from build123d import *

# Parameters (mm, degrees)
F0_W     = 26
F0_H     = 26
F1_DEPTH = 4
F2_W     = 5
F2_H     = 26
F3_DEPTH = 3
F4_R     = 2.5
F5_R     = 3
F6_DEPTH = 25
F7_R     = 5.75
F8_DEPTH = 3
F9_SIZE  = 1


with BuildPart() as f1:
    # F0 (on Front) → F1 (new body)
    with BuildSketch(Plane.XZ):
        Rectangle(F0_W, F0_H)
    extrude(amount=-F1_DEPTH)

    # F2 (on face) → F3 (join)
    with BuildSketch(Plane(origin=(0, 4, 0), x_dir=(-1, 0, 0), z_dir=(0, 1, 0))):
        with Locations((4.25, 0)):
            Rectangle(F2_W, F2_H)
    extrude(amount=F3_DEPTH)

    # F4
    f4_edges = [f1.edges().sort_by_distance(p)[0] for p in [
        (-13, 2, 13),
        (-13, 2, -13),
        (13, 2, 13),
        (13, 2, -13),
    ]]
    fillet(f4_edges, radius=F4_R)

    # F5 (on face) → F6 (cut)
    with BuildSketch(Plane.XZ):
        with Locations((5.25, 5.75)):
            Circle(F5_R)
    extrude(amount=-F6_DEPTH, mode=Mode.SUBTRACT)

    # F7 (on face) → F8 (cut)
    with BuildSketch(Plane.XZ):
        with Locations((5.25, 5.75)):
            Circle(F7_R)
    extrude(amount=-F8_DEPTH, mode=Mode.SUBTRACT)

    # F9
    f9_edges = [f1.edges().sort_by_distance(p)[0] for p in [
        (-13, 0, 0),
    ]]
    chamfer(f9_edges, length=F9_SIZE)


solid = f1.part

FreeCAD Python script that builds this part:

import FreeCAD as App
import Part
import Sketcher
from FreeCAD import Vector
Q = App.Units.Quantity


def edges_at(feature, points):
    """Names of the edges that pass closest to the given points."""
    edges = feature.Shape.Edges
    near = lambda p: min(range(len(edges)), key=lambda i: edges[i].distToShape(Part.Vertex(*p))[0])
    return sorted({f"Edge{near(p) + 1}" for p in points})


def add_polygon(sketch, points):
    """Adds a closed chain of lines whose ends are joined by coincident constraints."""
    first, n = sketch.GeometryCount, len(points)
    for a, b in zip(points, points[1:] + points[:1]):
        sketch.addGeometry(Part.LineSegment(App.Vector(*a, 0), App.Vector(*b, 0)), False)
    for i in range(n):
        sketch.addConstraint(Sketcher.Constraint("Coincident", first + i, 2, first + (i + 1) % n, 1))

doc = App.newDocument("Part")
body = doc.addObject("PartDesign::Body", "Body")

sketch1 = body.newObject("Sketcher::SketchObject", "Sketch")
sketch1.AttachmentSupport = (doc.getObject("XZ_Plane"), [""])
sketch1.MapMode = "FlatFace"
add_polygon(sketch1, [(-13, 13), (-13, -13), (13, -13), (13, 13)])
sketch1.addConstraint([
    Sketcher.Constraint("Vertical", 0),
    Sketcher.Constraint("Horizontal", 1),
    Sketcher.Constraint("Vertical", 2),
    Sketcher.Constraint("Horizontal", 3),
    Sketcher.Constraint("Symmetric", 0, 2, 2, 2, -1, 1),
    Sketcher.Constraint("Equal", 3, 0),
    Sketcher.Constraint("DistanceX", 1, 1, 1, 2, Q("26 mm")),
])
pad1 = body.newObject("PartDesign::Pad", "Pad")
pad1.Profile = sketch1
pad1.Length = 4
pad1.Reversed = True

sketch2 = body.newObject("Sketcher::SketchObject", "Sketch001")
sketch2.AttachmentSupport = (doc.getObject("XZ_Plane"), [""])
sketch2.MapMode = "FlatFace"
sketch2.AttachmentOffset = App.Placement(Vector(0, 0, -4), App.Rotation())
add_polygon(sketch2, [(-2, 13), (-2, -13), (-7, -13), (-7, 13)])
sketch2.addConstraint([
    Sketcher.Constraint("Vertical", 0),
    Sketcher.Constraint("Horizontal", 1),
    Sketcher.Constraint("Vertical", 2),
    Sketcher.Constraint("Horizontal", 3),
    Sketcher.Constraint("DistanceX", 1, 2, 1, 1, Q("5 mm")),
    Sketcher.Constraint("DistanceY", 0, 2, 0, 1, Q("26 mm")),
    Sketcher.Constraint("DistanceY", 0, 2, -1, 1, Q("13 mm")),
    Sketcher.Constraint("DistanceX", 0, 2, -1, 1, Q("1.75 mm")),
])
pad2 = body.newObject("PartDesign::Pad", "Pad001")
pad2.Profile = sketch2
pad2.Length = 3
pad2.Reversed = True
doc.recompute()

fillet = body.newObject("PartDesign::Fillet", "Fillet")
fillet.Base = (pad2, edges_at(pad2, [
    (-13, 2, 13),
    (-13, 2, -13),
    (13, 2, 13),
    (13, 2, -13),
]))
fillet.Radius = 2.5

sketch3 = body.newObject("Sketcher::SketchObject", "Sketch002")
sketch3.AttachmentSupport = (doc.getObject("XZ_Plane"), [""])
sketch3.MapMode = "FlatFace"
sketch3.addGeometry(Part.Circle(Vector(5.2, 5.8, 0), Vector(0, 0, 1), 3), False)
sketch3.addConstraint([
    Sketcher.Constraint("Diameter", 0, Q("6 mm")),
    Sketcher.Constraint("DistanceX", -1, 1, 0, 3, Q("5.25 mm")),
    Sketcher.Constraint("DistanceY", -1, 1, 0, 3, Q("5.75 mm")),
])
pocket1 = body.newObject("PartDesign::Pocket", "Pocket")
pocket1.Profile = sketch3
pocket1.Length = 25

sketch4 = body.newObject("Sketcher::SketchObject", "Sketch003")
sketch4.AttachmentSupport = (doc.getObject("XZ_Plane"), [""])
sketch4.MapMode = "FlatFace"
sketch4.addGeometry(Part.Circle(Vector(5, 6, 0), Vector(0, 0, 1), 6), False)
sketch4.addConstraint([
    Sketcher.Constraint("Diameter", 0, Q("11.5 mm")),
    Sketcher.Constraint("DistanceX", -1, 1, 0, 3, Q("5.25 mm")),
    Sketcher.Constraint("DistanceY", -1, 1, 0, 3, Q("5.75 mm")),
])
pocket2 = body.newObject("PartDesign::Pocket", "Pocket001")
pocket2.Profile = sketch4
pocket2.Length = 3
doc.recompute()

chamfer = body.newObject("PartDesign::Chamfer", "Chamfer")
chamfer.Base = (pocket2, edges_at(pocket2, [(-13, 0, 0)]))
chamfer.Size = 1

doc.recompute()
